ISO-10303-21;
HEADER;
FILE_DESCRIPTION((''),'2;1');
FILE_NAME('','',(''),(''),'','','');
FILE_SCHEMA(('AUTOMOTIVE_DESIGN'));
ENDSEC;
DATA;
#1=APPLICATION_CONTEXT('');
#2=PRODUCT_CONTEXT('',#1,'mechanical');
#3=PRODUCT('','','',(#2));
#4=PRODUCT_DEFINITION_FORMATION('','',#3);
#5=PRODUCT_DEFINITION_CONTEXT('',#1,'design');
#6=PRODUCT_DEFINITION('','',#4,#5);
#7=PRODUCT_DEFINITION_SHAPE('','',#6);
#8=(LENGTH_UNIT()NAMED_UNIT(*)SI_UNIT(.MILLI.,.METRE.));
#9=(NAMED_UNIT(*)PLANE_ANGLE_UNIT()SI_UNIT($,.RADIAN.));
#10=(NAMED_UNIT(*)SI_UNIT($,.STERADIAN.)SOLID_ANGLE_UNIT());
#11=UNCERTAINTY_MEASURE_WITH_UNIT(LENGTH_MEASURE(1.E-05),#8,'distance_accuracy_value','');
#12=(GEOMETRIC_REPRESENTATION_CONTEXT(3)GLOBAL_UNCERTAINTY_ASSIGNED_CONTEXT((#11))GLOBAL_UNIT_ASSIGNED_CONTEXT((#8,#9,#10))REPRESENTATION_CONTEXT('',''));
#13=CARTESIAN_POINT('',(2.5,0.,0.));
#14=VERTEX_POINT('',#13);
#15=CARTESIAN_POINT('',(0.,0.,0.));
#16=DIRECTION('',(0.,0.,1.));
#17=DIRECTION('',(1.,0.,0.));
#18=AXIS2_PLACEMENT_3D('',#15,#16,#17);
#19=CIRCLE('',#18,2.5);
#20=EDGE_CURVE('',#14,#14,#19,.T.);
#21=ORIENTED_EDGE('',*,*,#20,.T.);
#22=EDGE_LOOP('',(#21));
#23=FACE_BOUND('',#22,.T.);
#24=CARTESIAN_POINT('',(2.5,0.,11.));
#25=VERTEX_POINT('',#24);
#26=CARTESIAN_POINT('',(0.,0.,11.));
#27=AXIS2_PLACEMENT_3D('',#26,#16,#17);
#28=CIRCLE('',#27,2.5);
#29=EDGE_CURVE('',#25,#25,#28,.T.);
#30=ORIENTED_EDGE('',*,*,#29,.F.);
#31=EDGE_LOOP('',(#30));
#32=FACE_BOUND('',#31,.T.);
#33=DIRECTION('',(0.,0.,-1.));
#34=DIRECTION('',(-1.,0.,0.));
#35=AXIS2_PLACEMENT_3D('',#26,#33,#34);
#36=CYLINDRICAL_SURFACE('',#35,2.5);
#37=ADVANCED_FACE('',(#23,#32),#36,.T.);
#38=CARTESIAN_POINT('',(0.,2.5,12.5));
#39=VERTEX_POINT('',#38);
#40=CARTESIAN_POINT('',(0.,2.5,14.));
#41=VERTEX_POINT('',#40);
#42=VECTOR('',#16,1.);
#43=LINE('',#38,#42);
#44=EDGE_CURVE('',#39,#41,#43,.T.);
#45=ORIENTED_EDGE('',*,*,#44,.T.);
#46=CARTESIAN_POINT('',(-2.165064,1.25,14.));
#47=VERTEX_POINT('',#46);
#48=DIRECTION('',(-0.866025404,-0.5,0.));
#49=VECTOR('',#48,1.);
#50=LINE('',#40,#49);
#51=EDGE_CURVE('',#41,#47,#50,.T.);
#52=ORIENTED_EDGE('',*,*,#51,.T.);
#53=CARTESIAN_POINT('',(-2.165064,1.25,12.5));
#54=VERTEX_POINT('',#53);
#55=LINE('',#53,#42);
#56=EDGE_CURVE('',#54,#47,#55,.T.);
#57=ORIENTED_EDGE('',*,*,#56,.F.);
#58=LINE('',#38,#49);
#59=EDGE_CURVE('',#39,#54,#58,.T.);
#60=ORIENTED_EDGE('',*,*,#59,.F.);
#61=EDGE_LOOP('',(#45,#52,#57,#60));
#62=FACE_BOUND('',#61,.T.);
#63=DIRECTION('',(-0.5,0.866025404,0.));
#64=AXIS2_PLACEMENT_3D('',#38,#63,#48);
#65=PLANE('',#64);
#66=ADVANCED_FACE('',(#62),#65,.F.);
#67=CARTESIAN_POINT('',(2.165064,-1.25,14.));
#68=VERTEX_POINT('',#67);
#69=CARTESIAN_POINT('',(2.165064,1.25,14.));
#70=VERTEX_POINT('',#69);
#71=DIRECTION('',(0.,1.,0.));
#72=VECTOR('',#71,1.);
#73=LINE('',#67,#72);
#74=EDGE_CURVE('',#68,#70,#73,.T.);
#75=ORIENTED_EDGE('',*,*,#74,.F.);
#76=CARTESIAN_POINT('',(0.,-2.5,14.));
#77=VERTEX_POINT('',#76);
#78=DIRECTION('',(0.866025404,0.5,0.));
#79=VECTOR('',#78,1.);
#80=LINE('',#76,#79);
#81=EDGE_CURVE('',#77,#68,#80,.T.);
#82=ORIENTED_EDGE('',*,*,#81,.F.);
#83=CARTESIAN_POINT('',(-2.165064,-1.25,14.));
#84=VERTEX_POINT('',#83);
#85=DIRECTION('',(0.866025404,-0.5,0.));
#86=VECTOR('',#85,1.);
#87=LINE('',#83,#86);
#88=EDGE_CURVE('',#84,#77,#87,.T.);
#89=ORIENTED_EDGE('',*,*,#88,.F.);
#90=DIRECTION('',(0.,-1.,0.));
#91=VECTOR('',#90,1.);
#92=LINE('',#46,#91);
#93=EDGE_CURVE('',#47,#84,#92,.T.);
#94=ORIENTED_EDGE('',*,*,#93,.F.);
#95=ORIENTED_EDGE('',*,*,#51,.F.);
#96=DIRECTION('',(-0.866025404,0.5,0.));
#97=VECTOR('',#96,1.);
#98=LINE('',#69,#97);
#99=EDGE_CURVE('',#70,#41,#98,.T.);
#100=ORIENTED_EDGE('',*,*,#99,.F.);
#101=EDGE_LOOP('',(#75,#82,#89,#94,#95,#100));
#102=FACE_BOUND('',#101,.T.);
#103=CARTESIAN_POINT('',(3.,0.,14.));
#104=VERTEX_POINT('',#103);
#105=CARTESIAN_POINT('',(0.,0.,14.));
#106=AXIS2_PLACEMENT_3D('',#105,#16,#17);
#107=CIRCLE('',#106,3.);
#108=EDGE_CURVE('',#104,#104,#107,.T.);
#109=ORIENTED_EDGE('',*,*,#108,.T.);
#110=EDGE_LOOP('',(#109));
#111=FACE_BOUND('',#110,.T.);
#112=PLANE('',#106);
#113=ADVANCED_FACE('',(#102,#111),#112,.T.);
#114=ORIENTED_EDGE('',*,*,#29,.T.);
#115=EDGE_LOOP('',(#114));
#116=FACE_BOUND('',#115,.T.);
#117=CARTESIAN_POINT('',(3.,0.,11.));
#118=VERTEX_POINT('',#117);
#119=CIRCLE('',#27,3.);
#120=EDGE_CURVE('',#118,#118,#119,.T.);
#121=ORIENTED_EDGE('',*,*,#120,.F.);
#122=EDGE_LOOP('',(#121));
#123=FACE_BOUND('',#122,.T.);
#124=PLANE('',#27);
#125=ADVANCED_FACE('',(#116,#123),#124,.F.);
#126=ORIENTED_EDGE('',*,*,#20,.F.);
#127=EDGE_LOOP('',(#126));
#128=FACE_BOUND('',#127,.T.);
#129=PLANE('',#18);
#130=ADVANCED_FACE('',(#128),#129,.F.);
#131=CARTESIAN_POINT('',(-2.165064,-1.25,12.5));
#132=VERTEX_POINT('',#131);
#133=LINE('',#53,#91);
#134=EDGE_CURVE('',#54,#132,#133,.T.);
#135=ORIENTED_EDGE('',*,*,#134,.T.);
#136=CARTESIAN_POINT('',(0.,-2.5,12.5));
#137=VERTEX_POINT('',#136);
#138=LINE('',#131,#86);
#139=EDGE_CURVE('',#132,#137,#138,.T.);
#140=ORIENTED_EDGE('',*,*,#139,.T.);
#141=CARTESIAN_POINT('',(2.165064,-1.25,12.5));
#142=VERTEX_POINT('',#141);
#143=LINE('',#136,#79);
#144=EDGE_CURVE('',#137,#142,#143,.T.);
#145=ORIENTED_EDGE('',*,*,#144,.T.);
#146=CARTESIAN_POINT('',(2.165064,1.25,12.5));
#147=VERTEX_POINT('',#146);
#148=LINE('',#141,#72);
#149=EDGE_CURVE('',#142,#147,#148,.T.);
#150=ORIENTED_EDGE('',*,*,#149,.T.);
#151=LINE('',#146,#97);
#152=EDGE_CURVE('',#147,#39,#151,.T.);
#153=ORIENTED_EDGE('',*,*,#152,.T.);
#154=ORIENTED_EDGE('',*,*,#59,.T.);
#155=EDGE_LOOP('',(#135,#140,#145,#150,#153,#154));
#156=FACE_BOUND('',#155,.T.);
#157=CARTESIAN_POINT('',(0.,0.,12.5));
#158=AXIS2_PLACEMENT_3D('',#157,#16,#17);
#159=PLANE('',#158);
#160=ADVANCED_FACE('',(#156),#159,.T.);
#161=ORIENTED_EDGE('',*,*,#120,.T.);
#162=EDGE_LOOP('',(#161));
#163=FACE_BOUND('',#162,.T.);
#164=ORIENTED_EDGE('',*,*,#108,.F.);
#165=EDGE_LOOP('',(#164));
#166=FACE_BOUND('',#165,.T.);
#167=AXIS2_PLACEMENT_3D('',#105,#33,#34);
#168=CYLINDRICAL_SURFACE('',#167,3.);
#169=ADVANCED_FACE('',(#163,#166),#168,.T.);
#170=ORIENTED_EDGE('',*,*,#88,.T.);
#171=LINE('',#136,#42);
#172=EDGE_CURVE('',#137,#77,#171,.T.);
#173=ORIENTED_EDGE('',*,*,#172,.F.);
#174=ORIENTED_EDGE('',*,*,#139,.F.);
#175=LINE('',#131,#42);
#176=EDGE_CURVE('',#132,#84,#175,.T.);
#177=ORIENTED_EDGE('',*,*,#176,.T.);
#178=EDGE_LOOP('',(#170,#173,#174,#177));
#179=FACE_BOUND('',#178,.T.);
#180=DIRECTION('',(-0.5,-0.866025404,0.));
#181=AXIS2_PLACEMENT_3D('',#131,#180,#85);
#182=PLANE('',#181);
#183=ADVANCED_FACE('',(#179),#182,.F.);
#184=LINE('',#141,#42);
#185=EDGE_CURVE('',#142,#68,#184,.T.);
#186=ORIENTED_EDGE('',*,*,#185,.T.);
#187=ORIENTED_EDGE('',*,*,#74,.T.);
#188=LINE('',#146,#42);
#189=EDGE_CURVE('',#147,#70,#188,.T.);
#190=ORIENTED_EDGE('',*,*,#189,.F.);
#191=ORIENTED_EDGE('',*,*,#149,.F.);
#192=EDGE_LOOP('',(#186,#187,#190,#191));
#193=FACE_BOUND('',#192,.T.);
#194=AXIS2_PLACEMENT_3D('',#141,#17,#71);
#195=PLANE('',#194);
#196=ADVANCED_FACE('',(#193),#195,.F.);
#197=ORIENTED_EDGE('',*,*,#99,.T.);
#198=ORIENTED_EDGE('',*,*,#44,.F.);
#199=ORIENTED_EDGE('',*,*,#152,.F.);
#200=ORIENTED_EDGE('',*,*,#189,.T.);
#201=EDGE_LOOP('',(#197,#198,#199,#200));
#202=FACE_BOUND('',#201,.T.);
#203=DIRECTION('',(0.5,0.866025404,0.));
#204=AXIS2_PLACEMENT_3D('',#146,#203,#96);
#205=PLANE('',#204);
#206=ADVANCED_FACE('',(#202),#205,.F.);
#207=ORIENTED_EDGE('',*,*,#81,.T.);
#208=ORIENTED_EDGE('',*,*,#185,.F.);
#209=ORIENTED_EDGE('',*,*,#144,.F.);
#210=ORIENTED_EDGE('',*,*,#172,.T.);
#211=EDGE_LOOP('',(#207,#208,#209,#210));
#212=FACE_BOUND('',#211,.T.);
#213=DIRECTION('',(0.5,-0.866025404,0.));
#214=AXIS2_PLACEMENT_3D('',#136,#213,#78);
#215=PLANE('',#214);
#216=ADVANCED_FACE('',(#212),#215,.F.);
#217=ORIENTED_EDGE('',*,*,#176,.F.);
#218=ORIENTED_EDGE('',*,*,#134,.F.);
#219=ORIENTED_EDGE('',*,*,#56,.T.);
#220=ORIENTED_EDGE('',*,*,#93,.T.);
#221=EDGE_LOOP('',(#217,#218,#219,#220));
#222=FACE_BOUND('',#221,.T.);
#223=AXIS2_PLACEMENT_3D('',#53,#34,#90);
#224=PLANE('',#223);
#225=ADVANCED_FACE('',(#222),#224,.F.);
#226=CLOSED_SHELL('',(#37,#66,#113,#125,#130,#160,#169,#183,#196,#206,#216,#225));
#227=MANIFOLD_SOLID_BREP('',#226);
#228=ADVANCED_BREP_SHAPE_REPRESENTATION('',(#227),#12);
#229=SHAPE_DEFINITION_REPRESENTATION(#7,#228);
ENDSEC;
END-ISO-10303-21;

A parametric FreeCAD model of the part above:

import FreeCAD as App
import Part
import Sketcher
Q = App.Units.Quantity

doc = App.newDocument("Part")
body = doc.addObject("PartDesign::Body", "Body")

# Sketch on XY plane
sketch1 = body.newObject("Sketcher::SketchObject", "Sketch")
sketch1.AttachmentSupport = (doc.getObject("XY_Plane"), [""])
sketch1.MapMode = "FlatFace"
sketch1.addGeometry(Part.Circle(App.Vector(0, 0, 0), App.Vector(0, 0, 1), 2.5), False)
sketch1.addConstraint([
    Sketcher.Constraint("Coincident", 0, 3, -1, 1),
    Sketcher.Constraint("Diameter", 0, 5.0),
])
pad1 = body.newObject("PartDesign::Pad", "Pad")
pad1.Profile = sketch1
pad1.Length = 11

# Sketch on XY plane
sketch2 = body.newObject("Sketcher::SketchObject", "Sketch001")
sketch2.AttachmentSupport = (doc.getObject("XY_Plane"), [""])
sketch2.MapMode = "FlatFace"
sketch2.AttachmentOffset = App.Placement(App.Vector(0, 0, 11), App.Rotation())
sketch2.addGeometry(Part.Circle(App.Vector(0, 0, 0), App.Vector(0, 0, 1), 3), False)
sketch2.addConstraint([
    Sketcher.Constraint("Coincident", 0, 3, -1, 1),
    Sketcher.Constraint("Diameter", 0, 6.0),
])
pad2 = body.newObject("PartDesign::Pad", "Pad001")
pad2.Profile = sketch2
pad2.Length = 3

# Sketch on XY plane
sketch3 = body.newObject("Sketcher::SketchObject", "Sketch002")
sketch3.AttachmentSupport = (doc.getObject("XY_Plane"), [""])
sketch3.MapMode = "FlatFace"
sketch3.AttachmentOffset = App.Placement(App.Vector(0, 0, 14), App.Rotation())
sketch3.addGeometry([
    Part.LineSegment(App.Vector(0, 2.5, 0), App.Vector(-2.165064, 1.25, 0)),  # 0
    Part.LineSegment(App.Vector(-2.165064, 1.25, 0), App.Vector(-2.165064, -1.25, 0)),  # 1
    Part.LineSegment(App.Vector(-2.165064, -1.25, 0), App.Vector(0, -2.5, 0)),  # 2
    Part.LineSegment(App.Vector(0, -2.5, 0), App.Vector(2.165064, -1.25, 0)),  # 3
    Part.LineSegment(App.Vector(2.165064, -1.25, 0), App.Vector(2.165064, 1.25, 0)),  # 4
    Part.LineSegment(App.Vector(2.165064, 1.25, 0), App.Vector(0, 2.5, 0)),  # 5
], False)
sketch3.addConstraint([
    Sketcher.Constraint("Coincident", 0, 2, 1, 1),
    Sketcher.Constraint("Coincident", 1, 2, 2, 1),
    Sketcher.Constraint("Coincident", 2, 2, 3, 1),
    Sketcher.Constraint("Coincident", 3, 2, 4, 1),
    Sketcher.Constraint("Coincident", 4, 2, 5, 1),
    Sketcher.Constraint("Coincident", 5, 2, 0, 1),
    Sketcher.Constraint("Vertical", 1),
    Sketcher.Constraint("Vertical", 4),
    Sketcher.Constraint("Symmetric", 0, 2, 3, 2, -1, 1),
    Sketcher.Constraint("Symmetric", 2, 2, 5, 2, -1, 1),
    Sketcher.Constraint("PointOnObject", 2, 2, -2),
    Sketcher.Constraint("Parallel", 2, 5),
    Sketcher.Constraint("Horizontal", 1, 2, 3, 2),
    Sketcher.Constraint("Angle", 0, Q("-150 deg")),
    Sketcher.Constraint("DistanceY", 1, 2, 1, 1, 2.5),
    Sketcher.Constraint("DistanceY", 2, 2, 5, 2, 5.0),
])
pocket1 = body.newObject("PartDesign::Pocket", "Pocket")
pocket1.Profile = sketch3
pocket1.Length = 1.5

doc.recompute()
